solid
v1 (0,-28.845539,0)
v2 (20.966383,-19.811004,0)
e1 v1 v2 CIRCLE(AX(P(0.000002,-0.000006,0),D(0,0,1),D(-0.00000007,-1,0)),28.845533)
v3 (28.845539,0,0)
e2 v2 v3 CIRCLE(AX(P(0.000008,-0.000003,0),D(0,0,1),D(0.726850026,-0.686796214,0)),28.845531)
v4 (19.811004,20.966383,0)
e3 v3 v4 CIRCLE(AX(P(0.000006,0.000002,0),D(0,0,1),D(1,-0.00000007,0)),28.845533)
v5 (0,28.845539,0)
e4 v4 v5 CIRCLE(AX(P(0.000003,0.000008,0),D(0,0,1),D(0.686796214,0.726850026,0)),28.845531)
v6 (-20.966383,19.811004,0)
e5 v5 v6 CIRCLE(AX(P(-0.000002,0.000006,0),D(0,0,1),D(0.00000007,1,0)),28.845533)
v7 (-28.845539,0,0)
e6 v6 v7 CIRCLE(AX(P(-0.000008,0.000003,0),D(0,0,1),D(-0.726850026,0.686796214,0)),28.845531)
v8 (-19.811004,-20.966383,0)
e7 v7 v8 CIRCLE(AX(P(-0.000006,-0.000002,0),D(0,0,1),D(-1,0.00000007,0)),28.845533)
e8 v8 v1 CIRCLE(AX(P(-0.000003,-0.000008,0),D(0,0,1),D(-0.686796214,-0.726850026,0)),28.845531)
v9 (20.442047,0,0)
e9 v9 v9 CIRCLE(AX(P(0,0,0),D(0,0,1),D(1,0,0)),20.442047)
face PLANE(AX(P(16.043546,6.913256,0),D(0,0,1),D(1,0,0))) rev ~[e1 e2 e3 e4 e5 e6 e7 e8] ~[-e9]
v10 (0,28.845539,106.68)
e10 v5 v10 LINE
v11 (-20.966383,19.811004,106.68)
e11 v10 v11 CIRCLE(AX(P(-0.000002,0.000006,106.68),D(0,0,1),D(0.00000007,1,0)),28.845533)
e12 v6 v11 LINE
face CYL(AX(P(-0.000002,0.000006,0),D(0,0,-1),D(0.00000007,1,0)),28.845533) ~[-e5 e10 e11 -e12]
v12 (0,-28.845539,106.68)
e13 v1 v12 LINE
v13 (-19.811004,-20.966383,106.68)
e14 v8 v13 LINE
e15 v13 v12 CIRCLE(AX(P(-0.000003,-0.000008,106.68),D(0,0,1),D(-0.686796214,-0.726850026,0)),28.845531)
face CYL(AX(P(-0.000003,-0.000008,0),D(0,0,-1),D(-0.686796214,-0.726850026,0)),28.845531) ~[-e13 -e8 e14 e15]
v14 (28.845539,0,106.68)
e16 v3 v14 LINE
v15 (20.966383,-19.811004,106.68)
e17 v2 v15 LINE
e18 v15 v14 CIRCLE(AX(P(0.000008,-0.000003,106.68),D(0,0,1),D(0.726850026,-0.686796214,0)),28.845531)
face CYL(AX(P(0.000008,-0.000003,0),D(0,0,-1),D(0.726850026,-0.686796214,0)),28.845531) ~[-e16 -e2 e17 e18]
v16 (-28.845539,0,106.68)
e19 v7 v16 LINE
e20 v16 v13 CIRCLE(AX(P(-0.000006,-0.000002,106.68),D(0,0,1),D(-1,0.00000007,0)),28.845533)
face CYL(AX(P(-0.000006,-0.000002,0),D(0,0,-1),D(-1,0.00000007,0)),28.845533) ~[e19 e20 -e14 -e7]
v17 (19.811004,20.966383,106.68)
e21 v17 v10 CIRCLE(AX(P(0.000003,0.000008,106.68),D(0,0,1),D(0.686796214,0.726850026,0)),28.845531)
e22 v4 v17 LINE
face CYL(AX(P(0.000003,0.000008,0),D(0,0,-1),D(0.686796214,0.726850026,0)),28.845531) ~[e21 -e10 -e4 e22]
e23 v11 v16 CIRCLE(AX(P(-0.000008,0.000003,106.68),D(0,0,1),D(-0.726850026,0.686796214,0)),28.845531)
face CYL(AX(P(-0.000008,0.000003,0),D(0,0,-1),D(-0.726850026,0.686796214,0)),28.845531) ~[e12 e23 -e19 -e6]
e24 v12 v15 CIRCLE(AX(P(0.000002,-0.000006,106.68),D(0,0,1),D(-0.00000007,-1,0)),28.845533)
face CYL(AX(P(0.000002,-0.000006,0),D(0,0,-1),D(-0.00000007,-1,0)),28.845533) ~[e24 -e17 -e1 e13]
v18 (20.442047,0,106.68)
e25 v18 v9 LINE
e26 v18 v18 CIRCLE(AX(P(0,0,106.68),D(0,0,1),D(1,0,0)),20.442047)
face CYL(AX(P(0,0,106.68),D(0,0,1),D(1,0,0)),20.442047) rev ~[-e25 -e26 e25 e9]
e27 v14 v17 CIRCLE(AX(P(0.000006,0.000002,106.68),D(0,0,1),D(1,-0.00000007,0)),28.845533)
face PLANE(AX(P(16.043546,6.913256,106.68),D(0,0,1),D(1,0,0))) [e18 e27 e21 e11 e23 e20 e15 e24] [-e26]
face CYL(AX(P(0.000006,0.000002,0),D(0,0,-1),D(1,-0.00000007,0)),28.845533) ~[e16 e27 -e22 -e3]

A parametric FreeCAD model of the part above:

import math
import FreeCAD as App
import Part
import Sketcher

V = App.Vector
Q = App.Units.Quantity

doc = App.newDocument("Part")
body = doc.addObject("PartDesign::Body", "Body")

# Sketch on XY plane
sketch1 = body.newObject("Sketcher::SketchObject", "Sketch")
sketch1.AttachmentSupport = (doc.getObject("XY_Plane"), [""])
sketch1.MapMode = "FlatFace"
sketch1.addGeometry([
    Part.ArcOfCircle(Part.Circle(V(0, 0, 0), V(0, 0, 1), 29), math.radians(0), math.radians(47)),  # 0
    Part.ArcOfCircle(Part.Circle(V(0, 0, 0), V(0, 0, 1), 29), math.radians(47), math.radians(90)),  # 1
    Part.ArcOfCircle(Part.Circle(V(0, 0, 0), V(0, 0, 1), 29), math.radians(90), math.radians(137)),  # 2
    Part.ArcOfCircle(Part.Circle(V(0, 0, 0), V(0, 0, 1), 29), math.radians(137), math.radians(180)),  # 3
    Part.ArcOfCircle(Part.Circle(V(0, 0, 0), V(0, 0, 1), 29), math.radians(180), math.radians(227)),  # 4
    Part.ArcOfCircle(Part.Circle(V(0, 0, 0), V(0, 0, 1), 29), math.radians(-133), math.radians(-90)),  # 5
    Part.ArcOfCircle(Part.Circle(V(0, 0, 0), V(0, 0, 1), 29), math.radians(-90), math.radians(-43)),  # 6
    Part.ArcOfCircle(Part.Circle(V(0, 0, 0), V(0, 0, 1), 29), math.radians(-43), math.radians(0)),  # 7
], False)
sketch1.addConstraint([
    Sketcher.Constraint("Tangent", 0, 2, 1, 1),
    Sketcher.Constraint("Tangent", 1, 2, 2, 1),
    Sketcher.Constraint("Tangent", 2, 2, 3, 1),
    Sketcher.Constraint("Tangent", 3, 2, 4, 1),
    Sketcher.Constraint("Tangent", 4, 2, 5, 1),
    Sketcher.Constraint("Tangent", 5, 2, 6, 1),
    Sketcher.Constraint("Tangent", 6, 2, 7, 1),
    Sketcher.Constraint("Tangent", 7, 2, 0, 1),
    Sketcher.Constraint("Coincident", 0, 3, -1, 1),
    Sketcher.Constraint("Coincident", 2, 3, -1, 1),
    Sketcher.Constraint("Coincident", 4, 3, -1, 1),
    Sketcher.Constraint("Equal", 3, 5),
    Sketcher.Constraint("PointOnObject", 1, 2, -2),
    Sketcher.Constraint("PointOnObject", 3, 2, -1),
    Sketcher.Constraint("PointOnObject", 5, 2, -2),
    Sketcher.Constraint("PointOnObject", 7, 2, -1),
    Sketcher.Constraint("Radius", 1, Q("28.845531 mm")),
    Sketcher.Constraint("DistanceX", 1, 3, 0, 2, Q("19.811001 mm")),
    Sketcher.Constraint("DistanceY", 3, 3, 2, 2, Q("19.811001 mm")),
    Sketcher.Constraint("DistanceX", 4, 2, 5, 3, Q("19.811001 mm")),
    Sketcher.Constraint("DistanceY", 6, 2, 7, 3, Q("19.811001 mm")),
])
pad1 = body.newObject("PartDesign::Pad", "Pad")
pad1.Profile = sketch1
pad1.Length = Q("4.2 in")

# Sketch on XY plane
sketch2 = body.newObject("Sketcher::SketchObject", "Sketch001")
sketch2.AttachmentSupport = (doc.getObject("XY_Plane"), [""])
sketch2.MapMode = "FlatFace"
sketch2.AttachmentOffset = App.Placement(V(0, 0, 4.2 * 25.4), App.Rotation())
sketch2.addGeometry(Part.Circle(V(0, 0, 0), V(0, 0, 1), 20), False)
sketch2.addConstraint([
    Sketcher.Constraint("Coincident", 0, 3, -1, 1),
    Sketcher.Constraint("Diameter", 0, Q("40.884094 mm")),
])
pocket1 = body.newObject("PartDesign::Pocket", "Pocket")
pocket1.Profile = sketch2
pocket1.Length = Q("5.95 in")

doc.recompute()
